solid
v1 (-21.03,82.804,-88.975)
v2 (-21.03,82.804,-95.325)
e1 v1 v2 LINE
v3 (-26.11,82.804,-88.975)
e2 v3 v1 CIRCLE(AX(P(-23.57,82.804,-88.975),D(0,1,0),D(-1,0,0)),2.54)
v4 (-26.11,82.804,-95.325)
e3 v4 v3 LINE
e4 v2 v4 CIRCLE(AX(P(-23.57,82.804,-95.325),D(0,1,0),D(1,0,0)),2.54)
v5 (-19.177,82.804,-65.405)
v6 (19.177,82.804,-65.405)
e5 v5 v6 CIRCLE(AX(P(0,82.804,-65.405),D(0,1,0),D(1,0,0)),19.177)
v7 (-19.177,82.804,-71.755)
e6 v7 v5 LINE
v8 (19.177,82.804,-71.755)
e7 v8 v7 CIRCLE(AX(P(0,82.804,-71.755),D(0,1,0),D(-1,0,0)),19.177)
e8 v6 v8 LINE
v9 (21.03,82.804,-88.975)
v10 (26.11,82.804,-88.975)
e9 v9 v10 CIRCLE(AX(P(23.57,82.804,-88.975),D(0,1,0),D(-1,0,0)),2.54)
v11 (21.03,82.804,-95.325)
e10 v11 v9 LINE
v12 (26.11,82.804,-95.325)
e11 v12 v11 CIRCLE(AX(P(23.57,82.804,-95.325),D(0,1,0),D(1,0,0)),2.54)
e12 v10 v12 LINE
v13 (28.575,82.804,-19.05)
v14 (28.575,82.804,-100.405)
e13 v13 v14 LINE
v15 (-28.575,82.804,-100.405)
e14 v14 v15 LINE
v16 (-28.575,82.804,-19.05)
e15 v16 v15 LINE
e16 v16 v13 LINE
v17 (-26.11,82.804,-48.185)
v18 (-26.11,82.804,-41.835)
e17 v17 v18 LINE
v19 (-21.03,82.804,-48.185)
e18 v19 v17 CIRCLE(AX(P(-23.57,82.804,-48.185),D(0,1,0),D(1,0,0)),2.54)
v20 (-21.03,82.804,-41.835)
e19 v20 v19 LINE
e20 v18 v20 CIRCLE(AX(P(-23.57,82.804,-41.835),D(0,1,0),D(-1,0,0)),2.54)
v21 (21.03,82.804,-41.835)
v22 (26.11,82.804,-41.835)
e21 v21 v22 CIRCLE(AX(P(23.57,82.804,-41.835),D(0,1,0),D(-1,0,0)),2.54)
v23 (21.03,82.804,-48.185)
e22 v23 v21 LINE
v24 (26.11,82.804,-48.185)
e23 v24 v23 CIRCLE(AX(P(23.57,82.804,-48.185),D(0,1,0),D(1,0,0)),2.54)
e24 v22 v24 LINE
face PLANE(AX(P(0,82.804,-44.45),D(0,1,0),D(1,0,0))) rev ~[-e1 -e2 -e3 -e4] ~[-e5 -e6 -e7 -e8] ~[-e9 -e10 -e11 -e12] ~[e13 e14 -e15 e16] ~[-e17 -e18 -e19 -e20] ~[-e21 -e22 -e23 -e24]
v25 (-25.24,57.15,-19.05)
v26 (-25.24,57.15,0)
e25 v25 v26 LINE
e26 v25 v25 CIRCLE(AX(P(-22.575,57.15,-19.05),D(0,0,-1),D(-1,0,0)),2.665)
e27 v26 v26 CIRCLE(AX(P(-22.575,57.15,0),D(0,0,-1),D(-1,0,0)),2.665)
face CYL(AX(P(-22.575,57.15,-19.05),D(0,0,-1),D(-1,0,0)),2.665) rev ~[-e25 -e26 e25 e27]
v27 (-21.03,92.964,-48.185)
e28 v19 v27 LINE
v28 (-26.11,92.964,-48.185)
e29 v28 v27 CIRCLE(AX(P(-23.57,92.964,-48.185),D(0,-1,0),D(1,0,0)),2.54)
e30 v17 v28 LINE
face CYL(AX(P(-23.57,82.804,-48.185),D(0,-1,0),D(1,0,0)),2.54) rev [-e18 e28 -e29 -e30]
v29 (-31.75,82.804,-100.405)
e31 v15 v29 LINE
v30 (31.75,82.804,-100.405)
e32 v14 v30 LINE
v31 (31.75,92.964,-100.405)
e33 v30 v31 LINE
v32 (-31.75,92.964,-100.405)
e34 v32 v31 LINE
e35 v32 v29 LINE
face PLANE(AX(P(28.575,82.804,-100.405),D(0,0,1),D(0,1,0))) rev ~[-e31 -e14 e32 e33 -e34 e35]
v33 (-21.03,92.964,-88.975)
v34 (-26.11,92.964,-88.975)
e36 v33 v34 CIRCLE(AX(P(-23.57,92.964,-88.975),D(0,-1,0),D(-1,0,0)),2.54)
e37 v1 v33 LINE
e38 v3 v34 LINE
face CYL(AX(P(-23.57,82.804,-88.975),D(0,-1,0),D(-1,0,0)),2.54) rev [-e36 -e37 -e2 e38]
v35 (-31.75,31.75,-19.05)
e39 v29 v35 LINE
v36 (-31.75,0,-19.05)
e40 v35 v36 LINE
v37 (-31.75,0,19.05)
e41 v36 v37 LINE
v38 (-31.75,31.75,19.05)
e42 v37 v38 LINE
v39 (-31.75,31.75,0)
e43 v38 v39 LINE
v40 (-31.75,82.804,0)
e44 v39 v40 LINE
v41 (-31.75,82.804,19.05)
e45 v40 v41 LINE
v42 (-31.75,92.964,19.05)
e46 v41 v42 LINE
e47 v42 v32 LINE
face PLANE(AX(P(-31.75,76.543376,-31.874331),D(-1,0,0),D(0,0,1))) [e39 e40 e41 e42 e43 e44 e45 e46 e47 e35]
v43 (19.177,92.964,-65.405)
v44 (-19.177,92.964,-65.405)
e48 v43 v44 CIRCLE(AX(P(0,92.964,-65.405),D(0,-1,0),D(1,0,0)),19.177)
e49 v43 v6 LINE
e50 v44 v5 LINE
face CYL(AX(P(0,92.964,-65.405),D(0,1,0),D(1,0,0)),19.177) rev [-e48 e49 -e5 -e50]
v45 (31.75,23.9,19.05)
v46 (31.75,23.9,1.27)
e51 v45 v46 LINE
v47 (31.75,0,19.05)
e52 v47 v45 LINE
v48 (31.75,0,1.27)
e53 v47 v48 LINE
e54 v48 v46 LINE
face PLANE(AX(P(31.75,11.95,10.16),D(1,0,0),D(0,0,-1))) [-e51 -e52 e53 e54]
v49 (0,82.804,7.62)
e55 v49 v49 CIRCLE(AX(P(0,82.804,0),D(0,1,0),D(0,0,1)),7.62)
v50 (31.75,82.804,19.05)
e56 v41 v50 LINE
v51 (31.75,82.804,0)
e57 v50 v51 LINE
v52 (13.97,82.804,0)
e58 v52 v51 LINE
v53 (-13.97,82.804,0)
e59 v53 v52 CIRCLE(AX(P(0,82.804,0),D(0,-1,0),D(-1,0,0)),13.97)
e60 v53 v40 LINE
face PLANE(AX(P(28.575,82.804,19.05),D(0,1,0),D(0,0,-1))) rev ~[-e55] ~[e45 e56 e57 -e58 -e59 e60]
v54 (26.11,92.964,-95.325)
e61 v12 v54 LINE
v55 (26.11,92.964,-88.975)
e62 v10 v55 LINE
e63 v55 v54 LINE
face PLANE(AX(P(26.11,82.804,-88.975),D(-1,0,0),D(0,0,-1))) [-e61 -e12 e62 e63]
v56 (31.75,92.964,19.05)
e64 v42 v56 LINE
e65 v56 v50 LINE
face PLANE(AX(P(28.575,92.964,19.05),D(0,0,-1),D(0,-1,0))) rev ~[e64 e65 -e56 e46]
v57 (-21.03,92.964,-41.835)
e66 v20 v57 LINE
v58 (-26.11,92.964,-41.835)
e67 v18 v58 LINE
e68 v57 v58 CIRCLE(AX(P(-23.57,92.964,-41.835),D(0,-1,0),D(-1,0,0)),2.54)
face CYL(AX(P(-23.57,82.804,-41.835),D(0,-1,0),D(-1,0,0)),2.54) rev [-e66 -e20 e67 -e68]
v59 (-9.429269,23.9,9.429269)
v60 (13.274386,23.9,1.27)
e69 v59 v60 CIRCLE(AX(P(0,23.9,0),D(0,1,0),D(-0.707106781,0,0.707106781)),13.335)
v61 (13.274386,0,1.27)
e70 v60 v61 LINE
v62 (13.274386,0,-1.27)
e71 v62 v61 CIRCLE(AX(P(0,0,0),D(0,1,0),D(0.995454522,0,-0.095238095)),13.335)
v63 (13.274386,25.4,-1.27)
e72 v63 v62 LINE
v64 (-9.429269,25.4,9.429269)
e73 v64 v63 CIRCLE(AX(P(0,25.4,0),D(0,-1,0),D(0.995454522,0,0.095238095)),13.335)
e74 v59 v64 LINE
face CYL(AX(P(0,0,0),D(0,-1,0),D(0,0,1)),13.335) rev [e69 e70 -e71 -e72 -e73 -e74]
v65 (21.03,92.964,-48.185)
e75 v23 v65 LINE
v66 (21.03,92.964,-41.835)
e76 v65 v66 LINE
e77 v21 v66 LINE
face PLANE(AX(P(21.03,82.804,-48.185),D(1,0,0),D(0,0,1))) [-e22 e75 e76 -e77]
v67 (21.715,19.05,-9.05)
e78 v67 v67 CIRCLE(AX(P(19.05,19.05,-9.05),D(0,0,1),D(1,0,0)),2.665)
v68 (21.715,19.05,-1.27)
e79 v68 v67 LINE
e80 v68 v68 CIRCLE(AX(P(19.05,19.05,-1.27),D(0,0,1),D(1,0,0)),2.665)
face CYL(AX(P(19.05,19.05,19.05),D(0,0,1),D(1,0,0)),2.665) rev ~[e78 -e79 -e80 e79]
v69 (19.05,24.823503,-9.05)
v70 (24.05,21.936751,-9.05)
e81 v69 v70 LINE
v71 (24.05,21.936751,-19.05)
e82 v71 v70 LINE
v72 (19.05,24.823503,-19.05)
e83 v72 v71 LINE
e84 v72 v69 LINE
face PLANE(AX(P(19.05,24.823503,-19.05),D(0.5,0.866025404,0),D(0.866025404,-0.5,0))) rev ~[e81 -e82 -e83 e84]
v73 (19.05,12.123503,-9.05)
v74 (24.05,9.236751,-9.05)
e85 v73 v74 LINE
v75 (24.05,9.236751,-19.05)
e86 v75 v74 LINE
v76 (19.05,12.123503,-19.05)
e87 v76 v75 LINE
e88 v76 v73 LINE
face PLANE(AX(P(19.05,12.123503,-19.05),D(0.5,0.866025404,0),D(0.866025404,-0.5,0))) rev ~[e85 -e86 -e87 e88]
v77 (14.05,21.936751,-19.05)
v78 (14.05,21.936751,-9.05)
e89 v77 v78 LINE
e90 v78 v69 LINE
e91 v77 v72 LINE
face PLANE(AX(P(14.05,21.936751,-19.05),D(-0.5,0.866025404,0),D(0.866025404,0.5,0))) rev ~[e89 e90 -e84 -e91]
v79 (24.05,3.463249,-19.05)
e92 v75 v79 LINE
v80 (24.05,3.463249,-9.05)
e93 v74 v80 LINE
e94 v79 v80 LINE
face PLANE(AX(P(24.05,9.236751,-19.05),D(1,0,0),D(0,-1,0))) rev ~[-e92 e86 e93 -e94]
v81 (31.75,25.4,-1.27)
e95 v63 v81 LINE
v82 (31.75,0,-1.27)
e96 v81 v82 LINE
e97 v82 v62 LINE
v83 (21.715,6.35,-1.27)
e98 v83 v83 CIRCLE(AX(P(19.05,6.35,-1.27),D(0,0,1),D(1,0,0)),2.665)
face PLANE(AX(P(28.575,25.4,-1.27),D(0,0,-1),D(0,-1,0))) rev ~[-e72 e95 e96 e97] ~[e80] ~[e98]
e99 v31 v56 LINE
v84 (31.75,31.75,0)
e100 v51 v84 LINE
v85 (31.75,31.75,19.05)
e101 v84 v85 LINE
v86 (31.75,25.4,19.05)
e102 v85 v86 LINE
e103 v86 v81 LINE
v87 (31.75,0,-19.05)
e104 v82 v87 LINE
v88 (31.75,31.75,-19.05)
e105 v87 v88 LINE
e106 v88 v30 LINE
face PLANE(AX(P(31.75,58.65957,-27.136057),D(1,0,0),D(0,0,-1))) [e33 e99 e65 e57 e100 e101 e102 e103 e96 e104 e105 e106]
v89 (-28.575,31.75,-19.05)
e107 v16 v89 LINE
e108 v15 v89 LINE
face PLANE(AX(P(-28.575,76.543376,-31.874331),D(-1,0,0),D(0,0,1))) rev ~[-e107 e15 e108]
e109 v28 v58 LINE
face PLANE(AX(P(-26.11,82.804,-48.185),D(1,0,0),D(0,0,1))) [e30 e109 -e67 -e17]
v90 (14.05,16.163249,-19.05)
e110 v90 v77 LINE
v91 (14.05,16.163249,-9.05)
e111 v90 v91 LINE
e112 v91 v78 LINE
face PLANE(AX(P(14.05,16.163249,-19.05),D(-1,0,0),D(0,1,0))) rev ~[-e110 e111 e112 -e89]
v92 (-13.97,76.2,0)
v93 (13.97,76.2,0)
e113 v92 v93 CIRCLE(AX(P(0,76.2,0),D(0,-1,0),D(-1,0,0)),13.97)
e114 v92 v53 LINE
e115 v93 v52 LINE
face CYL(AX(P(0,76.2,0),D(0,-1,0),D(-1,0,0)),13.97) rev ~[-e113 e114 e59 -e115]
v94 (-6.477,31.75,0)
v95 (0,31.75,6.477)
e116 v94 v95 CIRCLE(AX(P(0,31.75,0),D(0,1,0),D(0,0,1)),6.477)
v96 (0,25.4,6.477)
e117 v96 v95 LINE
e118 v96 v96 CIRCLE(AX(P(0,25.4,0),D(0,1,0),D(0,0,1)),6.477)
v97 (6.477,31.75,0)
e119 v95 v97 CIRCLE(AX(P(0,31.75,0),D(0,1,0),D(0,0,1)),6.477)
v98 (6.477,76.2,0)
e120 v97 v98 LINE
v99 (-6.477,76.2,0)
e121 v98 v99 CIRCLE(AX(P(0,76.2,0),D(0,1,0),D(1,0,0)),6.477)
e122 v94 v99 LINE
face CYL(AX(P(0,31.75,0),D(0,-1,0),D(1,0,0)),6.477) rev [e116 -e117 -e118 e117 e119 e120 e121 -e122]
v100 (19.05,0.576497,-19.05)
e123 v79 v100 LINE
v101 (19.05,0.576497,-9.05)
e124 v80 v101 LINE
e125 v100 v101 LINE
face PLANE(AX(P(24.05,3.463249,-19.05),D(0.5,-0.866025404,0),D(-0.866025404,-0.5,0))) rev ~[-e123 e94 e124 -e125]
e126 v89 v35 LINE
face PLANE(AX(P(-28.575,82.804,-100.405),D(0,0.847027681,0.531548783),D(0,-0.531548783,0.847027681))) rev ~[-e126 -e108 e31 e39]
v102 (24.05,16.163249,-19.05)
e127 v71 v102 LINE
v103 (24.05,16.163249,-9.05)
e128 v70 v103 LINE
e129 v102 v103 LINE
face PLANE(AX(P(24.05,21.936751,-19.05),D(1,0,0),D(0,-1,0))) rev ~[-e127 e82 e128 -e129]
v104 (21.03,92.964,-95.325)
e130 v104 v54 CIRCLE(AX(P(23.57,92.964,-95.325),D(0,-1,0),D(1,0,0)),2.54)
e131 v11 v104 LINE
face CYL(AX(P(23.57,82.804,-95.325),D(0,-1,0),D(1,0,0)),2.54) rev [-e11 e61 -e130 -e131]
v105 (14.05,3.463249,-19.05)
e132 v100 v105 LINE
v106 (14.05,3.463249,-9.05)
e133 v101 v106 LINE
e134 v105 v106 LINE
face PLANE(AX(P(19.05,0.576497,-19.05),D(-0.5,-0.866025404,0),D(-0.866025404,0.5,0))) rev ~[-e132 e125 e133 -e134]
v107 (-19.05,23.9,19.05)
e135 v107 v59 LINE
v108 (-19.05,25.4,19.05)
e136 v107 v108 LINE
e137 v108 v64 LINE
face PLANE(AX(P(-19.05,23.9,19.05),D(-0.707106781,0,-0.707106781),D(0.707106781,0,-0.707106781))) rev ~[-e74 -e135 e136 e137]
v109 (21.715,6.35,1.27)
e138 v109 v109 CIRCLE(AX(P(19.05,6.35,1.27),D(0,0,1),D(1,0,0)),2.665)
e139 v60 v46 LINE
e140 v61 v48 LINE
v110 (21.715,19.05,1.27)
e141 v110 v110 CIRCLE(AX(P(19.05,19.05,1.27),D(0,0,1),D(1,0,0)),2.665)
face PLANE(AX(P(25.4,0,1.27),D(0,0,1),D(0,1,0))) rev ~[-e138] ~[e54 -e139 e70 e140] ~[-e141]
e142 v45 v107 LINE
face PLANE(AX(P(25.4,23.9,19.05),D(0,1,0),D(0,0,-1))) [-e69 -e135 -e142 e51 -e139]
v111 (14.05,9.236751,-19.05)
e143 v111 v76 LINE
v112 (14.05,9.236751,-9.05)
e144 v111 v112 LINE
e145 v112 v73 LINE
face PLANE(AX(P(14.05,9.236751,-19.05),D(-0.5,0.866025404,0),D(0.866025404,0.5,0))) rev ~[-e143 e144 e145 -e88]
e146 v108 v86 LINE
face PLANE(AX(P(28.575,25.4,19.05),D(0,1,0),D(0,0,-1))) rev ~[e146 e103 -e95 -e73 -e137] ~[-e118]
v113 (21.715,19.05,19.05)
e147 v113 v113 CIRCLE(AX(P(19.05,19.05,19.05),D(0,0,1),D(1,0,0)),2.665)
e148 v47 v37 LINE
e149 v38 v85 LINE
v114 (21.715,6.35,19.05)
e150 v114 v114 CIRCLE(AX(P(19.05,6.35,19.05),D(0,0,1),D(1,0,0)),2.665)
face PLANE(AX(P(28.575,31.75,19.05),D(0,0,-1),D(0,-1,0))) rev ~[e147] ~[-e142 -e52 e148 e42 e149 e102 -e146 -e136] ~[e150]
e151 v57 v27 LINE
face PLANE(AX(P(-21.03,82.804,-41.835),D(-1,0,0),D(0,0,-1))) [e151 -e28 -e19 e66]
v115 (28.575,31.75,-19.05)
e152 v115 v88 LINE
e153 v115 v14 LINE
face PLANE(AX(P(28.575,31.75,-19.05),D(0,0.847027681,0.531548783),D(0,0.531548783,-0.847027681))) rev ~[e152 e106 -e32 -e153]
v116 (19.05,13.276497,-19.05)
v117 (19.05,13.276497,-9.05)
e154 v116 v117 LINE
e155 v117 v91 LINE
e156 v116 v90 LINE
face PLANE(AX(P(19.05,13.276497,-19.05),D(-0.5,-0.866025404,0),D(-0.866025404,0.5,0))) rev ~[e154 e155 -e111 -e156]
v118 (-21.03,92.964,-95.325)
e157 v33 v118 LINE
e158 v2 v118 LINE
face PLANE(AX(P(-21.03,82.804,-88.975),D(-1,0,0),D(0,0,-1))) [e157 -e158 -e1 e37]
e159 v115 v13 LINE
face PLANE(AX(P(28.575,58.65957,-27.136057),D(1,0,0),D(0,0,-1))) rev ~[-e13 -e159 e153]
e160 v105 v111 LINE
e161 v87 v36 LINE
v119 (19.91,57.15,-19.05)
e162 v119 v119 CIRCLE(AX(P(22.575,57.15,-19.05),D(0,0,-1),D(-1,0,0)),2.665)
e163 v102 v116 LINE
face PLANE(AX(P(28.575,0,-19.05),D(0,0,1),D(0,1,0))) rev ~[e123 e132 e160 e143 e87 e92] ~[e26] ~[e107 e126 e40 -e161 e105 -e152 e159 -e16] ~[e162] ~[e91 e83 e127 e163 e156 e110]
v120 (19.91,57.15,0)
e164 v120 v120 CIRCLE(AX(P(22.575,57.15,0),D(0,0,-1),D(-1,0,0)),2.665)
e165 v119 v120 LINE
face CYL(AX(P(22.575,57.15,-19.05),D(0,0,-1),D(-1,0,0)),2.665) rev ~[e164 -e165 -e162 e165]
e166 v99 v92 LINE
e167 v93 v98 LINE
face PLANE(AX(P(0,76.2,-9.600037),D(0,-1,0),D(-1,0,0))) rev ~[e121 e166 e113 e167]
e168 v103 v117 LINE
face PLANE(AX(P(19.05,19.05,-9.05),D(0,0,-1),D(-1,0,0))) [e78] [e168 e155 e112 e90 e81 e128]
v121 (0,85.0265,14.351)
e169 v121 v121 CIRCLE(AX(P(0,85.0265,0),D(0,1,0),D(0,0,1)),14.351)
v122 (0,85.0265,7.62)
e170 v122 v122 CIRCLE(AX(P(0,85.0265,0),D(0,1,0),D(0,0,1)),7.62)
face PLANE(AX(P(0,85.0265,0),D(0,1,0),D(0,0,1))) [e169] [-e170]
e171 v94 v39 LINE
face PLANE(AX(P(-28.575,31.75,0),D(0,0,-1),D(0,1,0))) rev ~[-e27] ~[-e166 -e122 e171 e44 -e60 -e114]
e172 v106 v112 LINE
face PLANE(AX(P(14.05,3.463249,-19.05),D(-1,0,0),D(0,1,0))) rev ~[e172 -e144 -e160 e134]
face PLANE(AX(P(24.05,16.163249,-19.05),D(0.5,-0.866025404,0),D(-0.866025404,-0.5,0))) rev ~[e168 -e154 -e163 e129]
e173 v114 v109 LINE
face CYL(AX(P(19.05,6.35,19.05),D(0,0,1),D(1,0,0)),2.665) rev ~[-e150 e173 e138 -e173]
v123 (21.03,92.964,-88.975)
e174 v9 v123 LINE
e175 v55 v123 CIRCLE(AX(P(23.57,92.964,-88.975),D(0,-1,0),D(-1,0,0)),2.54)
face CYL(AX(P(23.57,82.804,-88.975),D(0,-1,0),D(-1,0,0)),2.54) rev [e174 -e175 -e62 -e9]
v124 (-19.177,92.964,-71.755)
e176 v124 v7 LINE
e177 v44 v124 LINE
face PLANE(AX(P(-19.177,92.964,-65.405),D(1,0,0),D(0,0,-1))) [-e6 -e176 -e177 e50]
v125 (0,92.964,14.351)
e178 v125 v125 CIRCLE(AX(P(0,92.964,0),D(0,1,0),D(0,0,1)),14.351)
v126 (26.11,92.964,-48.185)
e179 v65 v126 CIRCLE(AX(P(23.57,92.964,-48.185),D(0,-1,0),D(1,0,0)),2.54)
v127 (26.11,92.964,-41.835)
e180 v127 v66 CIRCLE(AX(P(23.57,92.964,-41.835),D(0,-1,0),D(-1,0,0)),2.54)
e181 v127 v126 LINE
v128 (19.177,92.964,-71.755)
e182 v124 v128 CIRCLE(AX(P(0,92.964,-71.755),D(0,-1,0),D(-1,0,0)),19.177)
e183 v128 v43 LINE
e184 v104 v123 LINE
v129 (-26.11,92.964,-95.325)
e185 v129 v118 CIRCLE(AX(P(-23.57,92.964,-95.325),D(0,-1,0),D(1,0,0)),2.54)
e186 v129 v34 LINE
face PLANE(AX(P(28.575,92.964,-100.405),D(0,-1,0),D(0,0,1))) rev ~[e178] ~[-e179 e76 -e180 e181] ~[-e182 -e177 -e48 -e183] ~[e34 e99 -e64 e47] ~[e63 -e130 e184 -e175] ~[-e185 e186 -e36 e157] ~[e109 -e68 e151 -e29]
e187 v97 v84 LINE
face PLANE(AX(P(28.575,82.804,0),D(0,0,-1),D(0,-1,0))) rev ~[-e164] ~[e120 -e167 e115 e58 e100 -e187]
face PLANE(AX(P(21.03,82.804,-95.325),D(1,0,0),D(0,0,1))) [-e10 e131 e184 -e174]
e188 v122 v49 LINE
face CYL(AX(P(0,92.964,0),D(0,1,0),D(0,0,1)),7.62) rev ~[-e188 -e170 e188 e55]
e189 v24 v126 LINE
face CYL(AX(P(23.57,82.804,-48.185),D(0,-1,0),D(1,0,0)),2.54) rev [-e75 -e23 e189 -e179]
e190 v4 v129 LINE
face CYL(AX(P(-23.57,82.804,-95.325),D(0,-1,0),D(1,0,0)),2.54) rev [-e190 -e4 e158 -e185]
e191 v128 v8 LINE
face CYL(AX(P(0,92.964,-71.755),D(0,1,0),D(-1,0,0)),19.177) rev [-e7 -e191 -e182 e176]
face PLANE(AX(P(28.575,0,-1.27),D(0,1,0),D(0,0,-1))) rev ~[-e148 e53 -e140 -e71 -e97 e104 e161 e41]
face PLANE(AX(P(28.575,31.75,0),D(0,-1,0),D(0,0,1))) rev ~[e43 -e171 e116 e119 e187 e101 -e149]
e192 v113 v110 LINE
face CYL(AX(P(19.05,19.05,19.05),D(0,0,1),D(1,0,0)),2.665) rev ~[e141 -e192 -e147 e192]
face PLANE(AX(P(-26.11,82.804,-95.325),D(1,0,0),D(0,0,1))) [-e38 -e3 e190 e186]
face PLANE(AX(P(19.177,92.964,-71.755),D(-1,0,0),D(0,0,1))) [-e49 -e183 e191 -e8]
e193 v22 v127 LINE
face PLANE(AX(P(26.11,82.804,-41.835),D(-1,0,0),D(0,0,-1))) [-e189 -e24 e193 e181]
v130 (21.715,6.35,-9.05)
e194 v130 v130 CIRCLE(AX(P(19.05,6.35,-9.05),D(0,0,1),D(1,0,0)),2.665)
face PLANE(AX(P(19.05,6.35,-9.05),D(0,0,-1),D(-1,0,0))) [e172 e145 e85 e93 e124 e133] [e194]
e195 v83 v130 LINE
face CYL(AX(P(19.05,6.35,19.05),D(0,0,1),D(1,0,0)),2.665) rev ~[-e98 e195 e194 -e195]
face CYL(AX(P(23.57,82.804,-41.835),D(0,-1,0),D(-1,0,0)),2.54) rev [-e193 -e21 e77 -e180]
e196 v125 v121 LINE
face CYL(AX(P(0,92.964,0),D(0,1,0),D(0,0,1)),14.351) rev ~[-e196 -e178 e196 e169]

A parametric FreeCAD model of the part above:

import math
import FreeCAD as App
import Part
import Sketcher

V = App.Vector
Q = App.Units.Quantity


def add_polygon(sketch, points):
    """Adds a closed chain of lines whose ends are joined by coincident constraints."""
    first, n = sketch.GeometryCount, len(points)
    for a, b in zip(points, points[1:] + points[:1]):
        sketch.addGeometry(Part.LineSegment(App.Vector(*a, 0), App.Vector(*b, 0)), False)
    for i in range(n):
        sketch.addConstraint(Sketcher.Constraint("Coincident", first + i, 2, first + (i + 1) % n, 1))

doc = App.newDocument("Part")
body = doc.addObject("PartDesign::Body", "Body")

# Sketch on XZ plane
sketch1 = body.newObject("Sketcher::SketchObject", "Sketch")
sketch1.AttachmentSupport = (doc.getObject("XZ_Plane"), [""])
sketch1.MapMode = "FlatFace"
add_polygon(sketch1, [(-25.4, -19.05), (-25.4, 19.05), (25.4, 19.05), (25.4, -19.05)])  # lines 0-3
sketch1.addGeometry(Part.Circle(V(0, 0, 0), V(0, 0, 1), 13.335), False)  # 4
sketch1.addConstraint([
    Sketcher.Constraint("Vertical", 0),
    Sketcher.Constraint("Horizontal", 1),
    Sketcher.Constraint("Vertical", 2),
    Sketcher.Constraint("Horizontal", 3),
    Sketcher.Constraint("Coincident", 4, 3, -1, 1),
    Sketcher.Constraint("Symmetric", 0, 2, 2, 2, -1, 1),
    Sketcher.Constraint("Diameter", 4, Q("1.05 in")),
    Sketcher.Constraint("DistanceX", 1, 1, 1, 2, Q("2 in")),
    Sketcher.Constraint("DistanceY", 0, 1, 0, 2, Q("1.5 in")),
])
pad1 = body.newObject("PartDesign::Pad", "Pad")
pad1.Profile = sketch1
pad1.Length = Q("1 in")
pad1.Reversed = True

# Sketch on XZ plane
sketch2 = body.newObject("Sketcher::SketchObject", "Sketch001")
sketch2.AttachmentSupport = (doc.getObject("XZ_Plane"), [""])
sketch2.MapMode = "FlatFace"
sketch2.AttachmentOffset = App.Placement(V(0, 0, -1 * 25.4), App.Rotation())
add_polygon(sketch2, [(0, -1.27), (0, 1.27), (25.4, 1.27), (25.4, -1.27)])  # lines 0-3
sketch2.addConstraint([
    Sketcher.Constraint("Vertical", 0),
    Sketcher.Constraint("Horizontal", 1),
    Sketcher.Constraint("Vertical", 2),
    Sketcher.Constraint("Horizontal", 3),
    Sketcher.Constraint("Symmetric", 0, 2, 3, 2, -1, 1),
    Sketcher.Constraint("DistanceX", 1, 1, 1, 2, Q("1 in")),
    Sketcher.Constraint("DistanceY", 0, 1, 0, 2, Q("0.1 in")),
])
pocket1 = body.newObject("PartDesign::Pocket", "Pocket")
pocket1.Profile = sketch2
pocket1.Length = Q("1 in")
pocket1.Reversed = True

# Sketch on XY plane
sketch3 = body.newObject("Sketcher::SketchObject", "Sketch002")
sketch3.AttachmentSupport = (doc.getObject("XY_Plane"), [""])
sketch3.MapMode = "FlatFace"
sketch3.AttachmentOffset = App.Placement(V(0, 0, 0.75 * 25.4), App.Rotation())
sketch3.addGeometry([
    Part.Circle(V(19.05, 19.05, 0), V(0, 0, 1), 2.665),
    Part.Circle(V(19.05, 6.35, 0), V(0, 0, 1), 2.665),
], False)
sketch3.addConstraint([
    Sketcher.Constraint("Equal", 0, 1),
    Sketcher.Constraint("Vertical", 0, 3, 1, 3),
    Sketcher.Constraint("DistanceY", 1, 3, 0, 3, Q("0.5 in")),
    Sketcher.Constraint("Diameter", 0, Q("5.33 mm")),
    Sketcher.Constraint("DistanceX", -1, 1, 0, 3, Q("0.75 in")),
    Sketcher.Constraint("DistanceY", -1, 1, 0, 3, Q("0.75 in")),
])
pocket2 = body.newObject("PartDesign::Pocket", "Pocket001")
pocket2.Profile = sketch3
pocket2.Type = "ThroughAll"

# Sketch on XY plane
sketch4 = body.newObject("Sketcher::SketchObject", "Sketch003")
sketch4.AttachmentSupport = (doc.getObject("XY_Plane"), [""])
sketch4.MapMode = "FlatFace"
sketch4.AttachmentOffset = App.Placement(V(0, 0, -0.75 * 25.4), App.Rotation())
add_polygon(sketch4, [(19.05, 24.823503), (24.05, 21.936751), (24.05, 16.163249), (19.05, 13.276497), (14.05, 16.163249), (14.05, 21.936751)])  # lines 0-5
add_polygon(sketch4, [(19.05, 12.123503), (24.05, 9.236751), (24.05, 3.463249), (19.05, 0.576497), (14.05, 3.463249), (14.05, 9.236751)])  # lines 6-11
sketch4.addConstraint([
    Sketcher.Constraint("Vertical", 1),
    Sketcher.Constraint("Vertical", 4),
    Sketcher.Constraint("Vertical", 7),
    Sketcher.Constraint("Vertical", 10),
    Sketcher.Constraint("Parallel", 0, 3),
    Sketcher.Constraint("Parallel", 2, 5),
    Sketcher.Constraint("Parallel", 3, 6),
    Sketcher.Constraint("Parallel", 5, 8),
    Sketcher.Constraint("Parallel", 6, 9),
    Sketcher.Constraint("Parallel", 8, 11),
    Sketcher.Constraint("Horizontal", 1, 2, 3, 2),
    Sketcher.Constraint("Horizontal", 0, 2, 4, 2),
    Sketcher.Constraint("Horizontal", 7, 2, 9, 2),
    Sketcher.Constraint("Horizontal", 6, 2, 10, 2),
    Sketcher.Constraint("Vertical", 2, 2, 5, 2),
    Sketcher.Constraint("Vertical", 1, 2, 6, 2),
    Sketcher.Constraint("Vertical", 5, 2, 8, 2),
    Sketcher.Constraint("Equal", 4, 7),
    Sketcher.Constraint("Angle", 0, Q("-30 deg")),
    Sketcher.Constraint("DistanceY", 6, 2, 0, 2, Q("0.5 in")),
    Sketcher.Constraint("DistanceX", -1, 1, 2, 2, Q("0.75 in")),
    Sketcher.Constraint("DistanceX", -1, 1, 0, 2, Q("24.05 mm")),
    Sketcher.Constraint("DistanceY", 1, 2, 1, 1, Q("5.773503 mm")),
    Sketcher.Constraint("DistanceY", -1, 1, 0, 2, Q("21.936751 mm")),
])
pocket3 = body.newObject("PartDesign::Pocket", "Pocket002")
pocket3.Profile = sketch4
pocket3.Length = 10
pocket3.Reversed = True

# Sketch on XZ plane
sketch5 = body.newObject("Sketcher::SketchObject", "Sketch004")
sketch5.AttachmentSupport = (doc.getObject("XZ_Plane"), [""])
sketch5.MapMode = "FlatFace"
sketch5.AttachmentOffset = App.Placement(V(0, 0, -23.9), App.Rotation())
sketch5.addGeometry([
    Part.LineSegment(V(-9.429269, 9.429269, 0), V(-19.05, 19.05, 0)),  # 0
    Part.LineSegment(V(-19.05, 19.05, 0), V(25.4, 19.05, 0)),  # 1
    Part.LineSegment(V(25.4, 19.05, 0), V(25.4, 1.27, 0)),  # 2
    Part.LineSegment(V(25.4, 1.27, 0), V(13.274386, 1.27, 0)),  # 3
    Part.ArcOfCircle(Part.Circle(V(0, 0, 0), V(0, 0, 1), 13.335), math.radians(5.465024), math.radians(135)),  # 4
], False)
sketch5.addConstraint([
    Sketcher.Constraint("Coincident", 0, 2, 1, 1),
    Sketcher.Constraint("Coincident", 1, 2, 2, 1),
    Sketcher.Constraint("Coincident", 2, 2, 3, 1),
    Sketcher.Constraint("Coincident", 3, 2, 4, 1),
    Sketcher.Constraint("Coincident", 4, 2, 0, 1),
    Sketcher.Constraint("Horizontal", 1),
    Sketcher.Constraint("Vertical", 2),
    Sketcher.Constraint("Horizontal", 3),
    Sketcher.Constraint("Coincident", 4, 3, -1, 1),
    Sketcher.Constraint("DistanceY", 2, 2, 2, 1, Q("0.7 in")),
    Sketcher.Constraint("DistanceX", -1, 1, 1, 2, Q("1 in")),
    Sketcher.Constraint("Angle", 0, Q("135 deg")),
    Sketcher.Constraint("Radius", 4, Q("0.525 in")),
    Sketcher.Constraint("DistanceX", 1, 1, 1, 2, Q("1.75 in")),
    Sketcher.Constraint("DistanceY", -1, 1, 0, 2, Q("0.75 in")),
])
pocket4 = body.newObject("PartDesign::Pocket", "Pocket003")
pocket4.Profile = sketch5
pocket4.Length = 1.5

# Sketch on XZ plane
sketch6 = body.newObject("Sketcher::SketchObject", "Sketch005")
sketch6.AttachmentSupport = (doc.getObject("XZ_Plane"), [""])
sketch6.MapMode = "FlatFace"
sketch6.AttachmentOffset = App.Placement(V(0, 0, -1 * 25.4), App.Rotation())
add_polygon(sketch6, [(-25.4, -19.05), (-25.4, 19.05), (25.4, 19.05), (25.4, -19.05)])  # lines 0-3
sketch6.addGeometry(Part.Circle(V(0, 0, 0), V(0, 0, 1), 6.477), False)  # 4
sketch6.addConstraint([
    Sketcher.Constraint("Vertical", 0),
    Sketcher.Constraint("Horizontal", 1),
    Sketcher.Constraint("Vertical", 2),
    Sketcher.Constraint("Horizontal", 3),
    Sketcher.Constraint("Coincident", 4, 3, -1, 1),
    Sketcher.Constraint("Symmetric", 0, 2, 2, 2, -1, 1),
    Sketcher.Constraint("Diameter", 4, Q("0.51 in")),
    Sketcher.Constraint("DistanceX", 1, 1, 1, 2, Q("2 in")),
    Sketcher.Constraint("DistanceY", 0, 1, 0, 2, Q("1.5 in")),
])
pad2 = body.newObject("PartDesign::Pad", "Pad001")
pad2.Profile = sketch6
pad2.Length = Q("0.25 in")
pad2.Reversed = True

# Sketch on XZ plane
sketch7 = body.newObject("Sketcher::SketchObject", "Sketch006")
sketch7.AttachmentSupport = (doc.getObject("XZ_Plane"), [""])
sketch7.MapMode = "FlatFace"
sketch7.AttachmentOffset = App.Placement(V(0, 0, -1.25 * 25.4), App.Rotation())
sketch7.addGeometry([
    Part.LineSegment(V(25.4, -19.05, 0), V(-25.4, -19.05, 0)),  # 0
    Part.LineSegment(V(-25.4, -19.05, 0), V(-25.4, 0, 0)),  # 1
    Part.LineSegment(V(-25.4, 0, 0), V(-6.477, 0, 0)),  # 2
    Part.ArcOfCircle(Part.Circle(V(0, 0, 0), V(0, 0, 1), 6.477), math.radians(180), math.radians(360)),  # 3
    Part.LineSegment(V(6.477, 0, 0), V(25.4, 0, 0)),  # 4
    Part.LineSegment(V(25.4, 0, 0), V(25.4, -19.05, 0)),  # 5
], False)
sketch7.addConstraint([
    Sketcher.Constraint("Coincident", 0, 2, 1, 1),
    Sketcher.Constraint("Coincident", 1, 2, 2, 1),
    Sketcher.Constraint("Coincident", 2, 2, 3, 1),
    Sketcher.Constraint("Coincident", 3, 2, 4, 1),
    Sketcher.Constraint("Coincident", 4, 2, 5, 1),
    Sketcher.Constraint("Coincident", 5, 2, 0, 1),
    Sketcher.Constraint("Horizontal", 0),
    Sketcher.Constraint("Vertical", 1),
    Sketcher.Constraint("Horizontal", 2),
    Sketcher.Constraint("Horizontal", 4),
    Sketcher.Constraint("Vertical", 5),
    Sketcher.Constraint("Coincident", 3, 3, -1, 1),
    Sketcher.Constraint("Symmetric", 1, 2, 4, 2, -1, 1),
    Sketcher.Constraint("PointOnObject", 1, 2, -1),
    Sketcher.Constraint("DistanceX", 0, 2, 0, 1, Q("2 in")),
    Sketcher.Constraint("Radius", 3, Q("0.255 in")),
    Sketcher.Constraint("DistanceY", 1, 1, 1, 2, Q("0.75 in")),
])
pad3 = body.newObject("PartDesign::Pad", "Pad002")
pad3.Profile = sketch7
pad3.Length = Q("1.75 in")
pad3.Reversed = True

# Sketch on XZ plane
sketch8 = body.newObject("Sketcher::SketchObject", "Sketch007")
sketch8.AttachmentSupport = (doc.getObject("XZ_Plane"), [""])
sketch8.MapMode = "FlatFace"
sketch8.AttachmentOffset = App.Placement(V(0, 0, -3 * 25.4), App.Rotation())
sketch8.addGeometry([
    Part.LineSegment(V(-25.4, -19.05, 0), V(-25.4, 0, 0)),  # 0
    Part.LineSegment(V(-25.4, 0, 0), V(-13.97, 0, 0)),  # 1
    Part.ArcOfCircle(Part.Circle(V(0, 0, 0), V(0, 0, 1), 13.97), math.radians(180), math.radians(360)),  # 2
    Part.LineSegment(V(13.97, 0, 0), V(25.4, 0, 0)),  # 3
    Part.LineSegment(V(25.4, 0, 0), V(25.4, -19.05, 0)),  # 4
    Part.LineSegment(V(25.4, -19.05, 0), V(-25.4, -19.05, 0)),  # 5
], False)
sketch8.addConstraint([
    Sketcher.Constraint("Coincident", 0, 2, 1, 1),
    Sketcher.Constraint("Coincident", 1, 2, 2, 1),
    Sketcher.Constraint("Coincident", 2, 2, 3, 1),
    Sketcher.Constraint("Coincident", 3, 2, 4, 1),
    Sketcher.Constraint("Coincident", 4, 2, 5, 1),
    Sketcher.Constraint("Coincident", 5, 2, 0, 1),
    Sketcher.Constraint("Vertical", 0),
    Sketcher.Constraint("Horizontal", 1),
    Sketcher.Constraint("Horizontal", 3),
    Sketcher.Constraint("Vertical", 4),
    Sketcher.Constraint("Horizontal", 5),
    Sketcher.Constraint("Coincident", 2, 3, -1, 1),
    Sketcher.Constraint("Symmetric", 0, 2, 3, 2, -1, 1),
    Sketcher.Constraint("PointOnObject", 0, 2, -1),
    Sketcher.Constraint("DistanceX", 5, 2, 5, 1, Q("2 in")),
    Sketcher.Constraint("Radius", 2, Q("0.55 in")),
    Sketcher.Constraint("DistanceY", 0, 1, 0, 2, Q("0.75 in")),
])
pad4 = body.newObject("PartDesign::Pad", "Pad003")
pad4.Profile = sketch8
pad4.Length = Q("0.26 in")
pad4.Reversed = True

# Sketch on XZ plane
sketch9 = body.newObject("Sketcher::SketchObject", "Sketch008")
sketch9.AttachmentSupport = (doc.getObject("XZ_Plane"), [""])
sketch9.MapMode = "FlatFace"
sketch9.AttachmentOffset = App.Placement(V(0, 0, -3.26 * 25.4), App.Rotation())
add_polygon(sketch9, [(-28.575, -107.95), (-28.575, 19.05), (28.575, 19.05), (28.575, -107.95)])  # lines 0-3
sketch9.addConstraint([
    Sketcher.Constraint("Vertical", 0),
    Sketcher.Constraint("Horizontal", 1),
    Sketcher.Constraint("Vertical", 2),
    Sketcher.Constraint("Horizontal", 3),
    Sketcher.Constraint("DistanceY", 0, 1, 0, 2, Q("5 in")),
    Sketcher.Constraint("DistanceX", 1, 1, 1, 2, Q("2.25 in")),
    Sketcher.Constraint("DistanceY", -1, 1, 0, 2, Q("0.75 in")),
    Sketcher.Constraint("DistanceX", 0, 2, -1, 1, Q("1.125 in")),
])
pad5 = body.newObject("PartDesign::Pad", "Pad004")
pad5.Profile = sketch9
pad5.Length = Q("0.4 in")
pad5.Reversed = True

# Sketch on XZ plane
sketch10 = body.newObject("Sketcher::SketchObject", "Sketch009")
sketch10.AttachmentSupport = (doc.getObject("XZ_Plane"), [""])
sketch10.MapMode = "FlatFace"
sketch10.AttachmentOffset = App.Placement(V(0, 0, -3.66 * 25.4), App.Rotation())
sketch10.addGeometry(Part.Circle(V(0, 0, 0), V(0, 0, 1), 7.62), False)
sketch10.addConstraint([
    Sketcher.Constraint("Coincident", 0, 3, -1, 1),
    Sketcher.Constraint("Diameter", 0, Q("0.6 in")),
])
pocket5 = body.newObject("PartDesign::Pocket", "Pocket004")
pocket5.Profile = sketch10
pocket5.Type = "UpToFirst"
pocket5.Reversed = True

# Sketch on XZ plane
sketch11 = body.newObject("Sketcher::SketchObject", "Sketch010")
sketch11.AttachmentSupport = (doc.getObject("XZ_Plane"), [""])
sketch11.MapMode = "FlatFace"
sketch11.AttachmentOffset = App.Placement(V(0, 0, -3.66 * 25.4), App.Rotation())
sketch11.addGeometry(Part.Circle(V(0, 0, 0), V(0, 0, 1), 14.351), False)
sketch11.addConstraint([
    Sketcher.Constraint("Coincident", 0, 3, -1, 1),
    Sketcher.Constraint("Diameter", 0, Q("1.13 in")),
])
pocket6 = body.newObject("PartDesign::Pocket", "Pocket005")
pocket6.Profile = sketch11
pocket6.Length = Q("0.3125 in")
pocket6.Reversed = True

# Sketch on XZ plane
sketch12 = body.newObject("Sketcher::SketchObject", "Sketch011")
sketch12.AttachmentSupport = (doc.getObject("XZ_Plane"), [""])
sketch12.MapMode = "FlatFace"
sketch12.AttachmentOffset = App.Placement(V(0, 0, -3.66 * 25.4), App.Rotation())
sketch12.addGeometry([
    Part.LineSegment(V(-19.177, -71.755, 0), V(-19.177, -65.405, 0)),
    Part.ArcOfCircle(Part.Circle(V(0, -65.405, 0), V(0, 0, 1), 19.177), math.radians(0), math.radians(180)),
    Part.LineSegment(V(19.177, -65.405, 0), V(19.177, -71.755, 0)),
    Part.ArcOfCircle(Part.Circle(V(0, -71.755, 0), V(0, 0, 1), 19.177), math.radians(180), math.radians(360)),
], False)
sketch12.addConstraint([
    Sketcher.Constraint("Tangent", 0, 2, 1, 2),
    Sketcher.Constraint("Tangent", 1, 1, 2, 1),
    Sketcher.Constraint("Tangent", 2, 2, 3, 2),
    Sketcher.Constraint("Tangent", 3, 1, 0, 1),
    Sketcher.Constraint("Vertical", 0),
    Sketcher.Constraint("Vertical", 2),
    Sketcher.Constraint("PointOnObject", 1, 3, -2),
    Sketcher.Constraint("Radius", 1, Q("0.755 in")),
    Sketcher.Constraint("DistanceY", 0, 1, 0, 2, Q("0.25 in")),
    Sketcher.Constraint("DistanceY", 1, 3, -1, 1, Q("2.575 in")),
])
pocket7 = body.newObject("PartDesign::Pocket", "Pocket006")
pocket7.Profile = sketch12
pocket7.Type = "UpToFirst"
pocket7.Reversed = True

# Sketch on XZ plane
sketch13 = body.newObject("Sketcher::SketchObject", "Sketch012")
sketch13.AttachmentSupport = (doc.getObject("XZ_Plane"), [""])
sketch13.MapMode = "FlatFace"
sketch13.AttachmentOffset = App.Placement(V(0, 0, -3.26 * 25.4), App.Rotation())
sketch13.addGeometry([
    Part.LineSegment(V(-21.03, -95.325, 0), V(-21.03, -88.975, 0)),
    Part.ArcOfCircle(Part.Circle(V(-23.57, -88.975, 0), V(0, 0, 1), 2.54), math.radians(0), math.radians(180)),
    Part.LineSegment(V(-26.11, -88.975, 0), V(-26.11, -95.325, 0)),
    Part.ArcOfCircle(Part.Circle(V(-23.57, -95.325, 0), V(0, 0, 1), 2.54), math.radians(180), math.radians(360)),
], False)
sketch13.addConstraint([
    Sketcher.Constraint("Tangent", 0, 2, 1, 1),
    Sketcher.Constraint("Tangent", 1, 2, 2, 1),
    Sketcher.Constraint("Tangent", 2, 2, 3, 1),
    Sketcher.Constraint("Tangent", 3, 2, 0, 1),
    Sketcher.Constraint("Vertical", 0),
    Sketcher.Constraint("Vertical", 2),
    Sketcher.Constraint("Radius", 1, Q("0.1 in")),
    Sketcher.Constraint("DistanceY", 0, 1, 0, 2, Q("0.25 in")),
    Sketcher.Constraint("DistanceX", 1, 3, -1, 1, Q("23.57 mm")),
    Sketcher.Constraint("DistanceY", 1, 3, -1, 1, Q("88.975 mm")),
])
pocket8 = body.newObject("PartDesign::Pocket", "Pocket007")
pocket8.Profile = sketch13
pocket8.Type = "UpToFirst"

# Sketch on XZ plane
sketch14 = body.newObject("Sketcher::SketchObject", "Sketch013")
sketch14.AttachmentSupport = (doc.getObject("XZ_Plane"), [""])
sketch14.MapMode = "FlatFace"
sketch14.AttachmentOffset = App.Placement(V(0, 0, -3.26 * 25.4), App.Rotation())
sketch14.addGeometry([
    Part.LineSegment(V(26.11, -95.325, 0), V(26.11, -88.975, 0)),
    Part.ArcOfCircle(Part.Circle(V(23.57, -88.975, 0), V(0, 0, 1), 2.54), math.radians(0), math.radians(180)),
    Part.LineSegment(V(21.03, -88.975, 0), V(21.03, -95.325, 0)),
    Part.ArcOfCircle(Part.Circle(V(23.57, -95.325, 0), V(0, 0, 1), 2.54), math.radians(180), math.radians(360)),
], False)
sketch14.addConstraint([
    Sketcher.Constraint("Tangent", 0, 2, 1, 1),
    Sketcher.Constraint("Tangent", 1, 2, 2, 1),
    Sketcher.Constraint("Tangent", 2, 2, 3, 1),
    Sketcher.Constraint("Tangent", 3, 2, 0, 1),
    Sketcher.Constraint("Vertical", 0),
    Sketcher.Constraint("Vertical", 2),
    Sketcher.Constraint("Radius", 1, Q("0.1 in")),
    Sketcher.Constraint("DistanceY", 0, 1, 0, 2, Q("0.25 in")),
    Sketcher.Constraint("DistanceX", -1, 1, 1, 3, Q("23.57 mm")),
    Sketcher.Constraint("DistanceY", 1, 3, -1, 1, Q("88.975 mm")),
])
pocket9 = body.newObject("PartDesign::Pocket", "Pocket008")
pocket9.Profile = sketch14
pocket9.Type = "UpToFirst"

# Sketch on XZ plane
sketch15 = body.newObject("Sketcher::SketchObject", "Sketch014")
sketch15.AttachmentSupport = (doc.getObject("XZ_Plane"), [""])
sketch15.MapMode = "FlatFace"
sketch15.AttachmentOffset = App.Placement(V(0, 0, -3.26 * 25.4), App.Rotation())
sketch15.addGeometry([
    Part.LineSegment(V(26.11, -48.185, 0), V(26.11, -41.835, 0)),
    Part.ArcOfCircle(Part.Circle(V(23.57, -41.835, 0), V(0, 0, 1), 2.54), math.radians(0), math.radians(180)),
    Part.LineSegment(V(21.03, -41.835, 0), V(21.03, -48.185, 0)),
    Part.ArcOfCircle(Part.Circle(V(23.57, -48.185, 0), V(0, 0, 1), 2.54), math.radians(180), math.radians(360)),
], False)
sketch15.addConstraint([
    Sketcher.Constraint("Tangent", 0, 2, 1, 1),
    Sketcher.Constraint("Tangent", 1, 2, 2, 1),
    Sketcher.Constraint("Tangent", 2, 2, 3, 1),
    Sketcher.Constraint("Tangent", 3, 2, 0, 1),
    Sketcher.Constraint("Vertical", 0),
    Sketcher.Constraint("Vertical", 2),
    Sketcher.Constraint("Radius", 1, Q("0.1 in")),
    Sketcher.Constraint("DistanceY", 0, 1, 0, 2, Q("0.25 in")),
    Sketcher.Constraint("DistanceX", -1, 1, 1, 3, Q("23.57 mm")),
    Sketcher.Constraint("DistanceY", 1, 3, -1, 1, Q("41.835 mm")),
])
pocket10 = body.newObject("PartDesign::Pocket", "Pocket009")
pocket10.Profile = sketch15
pocket10.Type = "UpToFirst"

# Sketch on XZ plane
sketch16 = body.newObject("Sketcher::SketchObject", "Sketch015")
sketch16.AttachmentSupport = (doc.getObject("XZ_Plane"), [""])
sketch16.MapMode = "FlatFace"
sketch16.AttachmentOffset = App.Placement(V(0, 0, -3.26 * 25.4), App.Rotation())
sketch16.addGeometry([
    Part.LineSegment(V(-21.03, -48.185, 0), V(-21.03, -41.835, 0)),
    Part.ArcOfCircle(Part.Circle(V(-23.57, -41.835, 0), V(0, 0, 1), 2.54), math.radians(0), math.radians(180)),
    Part.LineSegment(V(-26.11, -41.835, 0), V(-26.11, -48.185, 0)),
    Part.ArcOfCircle(Part.Circle(V(-23.57, -48.185, 0), V(0, 0, 1), 2.54), math.radians(180), math.radians(360)),
], False)
sketch16.addConstraint([
    Sketcher.Constraint("Tangent", 0, 2, 1, 1),
    Sketcher.Constraint("Tangent", 1, 2, 2, 1),
    Sketcher.Constraint("Tangent", 2, 2, 3, 1),
    Sketcher.Constraint("Tangent", 3, 2, 0, 1),
    Sketcher.Constraint("Vertical", 0),
    Sketcher.Constraint("Vertical", 2),
    Sketcher.Constraint("Radius", 1, Q("0.1 in")),
    Sketcher.Constraint("DistanceY", 0, 1, 0, 2, Q("0.25 in")),
    Sketcher.Constraint("DistanceX", 1, 3, -1, 1, Q("23.57 mm")),
    Sketcher.Constraint("DistanceY", 1, 3, -1, 1, Q("41.835 mm")),
])
pocket11 = body.newObject("PartDesign::Pocket", "Pocket010")
pocket11.Profile = sketch16
pocket11.Type = "UpToFirst"

# Sketch on XZ plane
sketch17 = body.newObject("Sketcher::SketchObject", "Sketch016")
sketch17.AttachmentSupport = (doc.getObject("XZ_Plane"), [""])
sketch17.MapMode = "FlatFace"
sketch17.AttachmentOffset = App.Placement(V(0, 0, -3.66 * 25.4), App.Rotation())
add_polygon(sketch17, [(-28.575, -107.95), (-28.575, -100.405), (28.575, -100.405), (28.575, -107.95)])  # lines 0-3
sketch17.addConstraint([
    Sketcher.Constraint("Vertical", 0),
    Sketcher.Constraint("Horizontal", 1),
    Sketcher.Constraint("Vertical", 2),
    Sketcher.Constraint("Horizontal", 3),
    Sketcher.Constraint("DistanceX", 1, 1, 1, 2, Q("2.25 in")),
    Sketcher.Constraint("DistanceY", 2, 2, -1, 1, Q("4.25 in")),
    Sketcher.Constraint("DistanceX", 0, 2, -1, 1, Q("1.125 in")),
    Sketcher.Constraint("DistanceY", 0, 1, 0, 2, Q("7.545 mm")),
])
pocket12 = body.newObject("PartDesign::Pocket", "Pocket011")
pocket12.Profile = sketch17
pocket12.Type = "UpToFirst"
pocket12.Reversed = True

# Sketch on YZ plane
sketch18 = body.newObject("Sketcher::SketchObject", "Sketch017")
sketch18.AttachmentSupport = (doc.getObject("YZ_Plane"), [""])
sketch18.MapMode = "FlatFace"
sketch18.AttachmentOffset = App.Placement(V(0, 0, 1 * 25.4), App.Rotation())
add_polygon(sketch18, [(23.9, 19.05), (0, 19.05), (0, 1.27), (23.9, 1.27)])  # lines 0-3
add_polygon(sketch18, [(0, -19.05), (82.804, -19.05), (82.804, 0), (31.75, 0), (31.75, 19.05), (25.4, 19.05), (25.4, -1.27), (0, -1.27)])  # lines 4-11
sketch18.addConstraint([
    Sketcher.Constraint("Horizontal", 0),
    Sketcher.Constraint("Vertical", 1),
    Sketcher.Constraint("Horizontal", 2),
    Sketcher.Constraint("Vertical", 3),
    Sketcher.Constraint("Horizontal", 4),
    Sketcher.Constraint("Vertical", 5),
    Sketcher.Constraint("Horizontal", 6),
    Sketcher.Constraint("Vertical", 7),
    Sketcher.Constraint("Horizontal", 8),
    Sketcher.Constraint("Vertical", 9),
    Sketcher.Constraint("Horizontal", 10),
    Sketcher.Constraint("Vertical", 11),
    Sketcher.Constraint("Symmetric", 1, 2, 10, 2, -1, 1),
    Sketcher.Constraint("Symmetric", 0, 2, 11, 2, -1),
    Sketcher.Constraint("PointOnObject", 5, 2, -1),
    Sketcher.Constraint("Horizontal", 3, 2, 7, 2),
    Sketcher.Constraint("DistanceX", 10, 2, 10, 1, Q("1 in")),
    Sketcher.Constraint("DistanceY", 1, 2, 1, 1, Q("0.7 in")),
    Sketcher.Constraint("DistanceY", 9, 2, 9, 1, Q("0.8 in")),
    Sketcher.Constraint("DistanceX", 4, 1, 4, 2, Q("3.26 in")),
    Sketcher.Constraint("DistanceX", 6, 2, 6, 1, Q("2.01 in")),
    Sketcher.Constraint("DistanceX", 0, 2, 0, 1, Q("23.9 mm")),
])
pad6 = body.newObject("PartDesign::Pad", "Pad005")
pad6.Profile = sketch18
pad6.Length = Q("0.125 in")

# Sketch on YZ plane
sketch19 = body.newObject("Sketcher::SketchObject", "Sketch018")
sketch19.AttachmentSupport = (doc.getObject("YZ_Plane"), [""])
sketch19.MapMode = "FlatFace"
sketch19.AttachmentOffset = App.Placement(V(0, 0, -1 * 25.4), App.Rotation())
add_polygon(sketch19, [(0, -19.05), (0, 19.05), (31.75, 19.05), (31.75, 0), (82.804, 0), (82.804, -19.05)])  # lines 0-5
sketch19.addConstraint([
    Sketcher.Constraint("Vertical", 0),
    Sketcher.Constraint("Horizontal", 1),
    Sketcher.Constraint("Vertical", 2),
    Sketcher.Constraint("Horizontal", 3),
    Sketcher.Constraint("Vertical", 4),
    Sketcher.Constraint("Horizontal", 5),
    Sketcher.Constraint("Symmetric", 0, 2, 5, 2, -1, 1),
    Sketcher.Constraint("PointOnObject", 2, 2, -1),
    Sketcher.Constraint("DistanceY", 0, 1, 0, 2, Q("1.5 in")),
    Sketcher.Constraint("DistanceX", 1, 1, 1, 2, Q("1.25 in")),
    Sketcher.Constraint("DistanceX", 3, 1, 3, 2, Q("2.01 in")),
])
pad7 = body.newObject("PartDesign::Pad", "Pad006")
pad7.Profile = sketch19
pad7.Length = Q("0.125 in")
pad7.Reversed = True

# Sketch on YZ plane
sketch20 = body.newObject("Sketcher::SketchObject", "Sketch019")
sketch20.AttachmentSupport = (doc.getObject("YZ_Plane"), [""])
sketch20.MapMode = "FlatFace"
sketch20.AttachmentOffset = App.Placement(V(0, 0, -1.125 * 25.4), App.Rotation())
add_polygon(sketch20, [(92.964, -100.405), (82.804, -100.405), (31.75, -19.05), (0, -19.05), (0, 19.05), (31.75, 19.05), (31.75, 0), (82.804, 0), (82.804, 19.05), (92.964, 19.05)])  # lines 0-9
sketch20.addConstraint([
    Sketcher.Constraint("Horizontal", 0),
    Sketcher.Constraint("Horizontal", 2),
    Sketcher.Constraint("Vertical", 3),
    Sketcher.Constraint("Horizontal", 4),
    Sketcher.Constraint("Vertical", 5),
    Sketcher.Constraint("Horizontal", 6),
    Sketcher.Constraint("Vertical", 7),
    Sketcher.Constraint("Horizontal", 8),
    Sketcher.Constraint("Vertical", 9),
    Sketcher.Constraint("Symmetric", 2, 2, 3, 2, -1, 1),
    Sketcher.Constraint("PointOnObject", 5, 2, -1),
    Sketcher.Constraint("Horizontal", 4, 2, 7, 2),
    Sketcher.Constraint("Vertical", 1, 2, 4, 2),
    Sketcher.Constraint("Vertical", 0, 2, 6, 2),
    Sketcher.Constraint("DistanceX", 0, 2, 0, 1, Q("0.4 in")),
    Sketcher.Constraint("DistanceY", 3, 1, 3, 2, Q("1.5 in")),
    Sketcher.Constraint("DistanceX", 2, 2, 2, 1, Q("1.25 in")),
    Sketcher.Constraint("DistanceX", 6, 1, 6, 2, Q("2.01 in")),
    Sketcher.Constraint("DistanceY", 9, 2, 9, 1, Q("119.455 mm")),
])
pad8 = body.newObject("PartDesign::Pad", "Pad007")
pad8.Profile = sketch20
pad8.Length = Q("0.125 in")
pad8.Reversed = True

# Sketch on YZ plane
sketch21 = body.newObject("Sketcher::SketchObject", "Sketch020")
sketch21.AttachmentSupport = (doc.getObject("YZ_Plane"), [""])
sketch21.MapMode = "FlatFace"
sketch21.AttachmentOffset = App.Placement(V(0, 0, 1.125 * 25.4), App.Rotation())
add_polygon(sketch21, [(31.75, -19.05), (82.804, -100.405), (92.964, -100.405), (92.964, 19.05), (82.804, 19.05), (82.804, 0), (31.75, 0), (31.75, 19.05), (25.4, 19.05), (25.4, -1.27), (0, -1.27), (0, -19.05)])  # lines 0-11
add_polygon(sketch21, [(23.9, 19.05), (0, 19.05), (0, 1.27), (23.9, 1.27)])  # lines 12-15
sketch21.addConstraint([
    Sketcher.Constraint("Horizontal", 1),
    Sketcher.Constraint("Vertical", 2),
    Sketcher.Constraint("Horizontal", 3),
    Sketcher.Constraint("Vertical", 4),
    Sketcher.Constraint("Horizontal", 5),
    Sketcher.Constraint("Vertical", 6),
    Sketcher.Constraint("Horizontal", 7),
    Sketcher.Constraint("Vertical", 8),
    Sketcher.Constraint("Horizontal", 9),
    Sketcher.Constraint("Vertical", 10),
    Sketcher.Constraint("Horizontal", 11),
    Sketcher.Constraint("Horizontal", 12),
    Sketcher.Constraint("Vertical", 13),
    Sketcher.Constraint("Horizontal", 14),
    Sketcher.Constraint("Vertical", 15),
    Sketcher.Constraint("Symmetric", 10, 2, 12, 2, -1, 1),
    Sketcher.Constraint("Symmetric", 6, 2, 11, 2, -1),
    Sketcher.Constraint("Symmetric", 9, 2, 13, 2, -1),
    Sketcher.Constraint("PointOnObject", 4, 2, -1),
    Sketcher.Constraint("Horizontal", 3, 2, 6, 2),
    Sketcher.Constraint("Vertical", 0, 2, 3, 2),
    Sketcher.Constraint("DistanceX", 9, 2, 9, 1, Q("1 in")),
    Sketcher.Constraint("DistanceX", 1, 1, 1, 2, Q("0.4 in")),
    Sketcher.Constraint("DistanceY", 8, 2, 8, 1, Q("0.8 in")),
    Sketcher.Constraint("DistanceY", 10, 2, 10, 1, Q("0.7 in")),
    Sketcher.Constraint("DistanceX", 5, 2, 5, 1, Q("2.01 in")),
    Sketcher.Constraint("DistanceX", 7, 2, 7, 1, Q("0.25 in")),
    Sketcher.Constraint("DistanceX", 12, 2, 12, 1, Q("23.9 mm")),
    Sketcher.Constraint("DistanceY", 2, 1, 2, 2, Q("119.455 mm")),
])
pad9 = body.newObject("PartDesign::Pad", "Pad008")
pad9.Profile = sketch21
pad9.Length = Q("0.125 in")

# Sketch on XY plane
sketch22 = body.newObject("Sketcher::SketchObject", "Sketch021")
sketch22.AttachmentSupport = (doc.getObject("XY_Plane"), [""])
sketch22.MapMode = "FlatFace"
sketch22.AttachmentOffset = App.Placement(V(0, 0, -0.75 * 25.4), App.Rotation())
sketch22.addGeometry(Part.Circle(V(-22.575, 57.15, 0), V(0, 0, 1), 2.665), False)
sketch22.addConstraint([
    Sketcher.Constraint("Diameter", 0, Q("5.33 mm")),
    Sketcher.Constraint("DistanceY", -1, 1, 0, 3, Q("2.25 in")),
    Sketcher.Constraint("DistanceX", 0, 3, -1, 1, Q("22.575 mm")),
])
pocket13 = body.newObject("PartDesign::Pocket", "Pocket012")
pocket13.Profile = sketch22
pocket13.Type = "UpToFirst"
pocket13.Reversed = True

# Sketch on XY plane
sketch23 = body.newObject("Sketcher::SketchObject", "Sketch022")
sketch23.AttachmentSupport = (doc.getObject("XY_Plane"), [""])
sketch23.MapMode = "FlatFace"
sketch23.AttachmentOffset = App.Placement(V(0, 0, -0.75 * 25.4), App.Rotation())
sketch23.addGeometry(Part.Circle(V(22.575, 57.15, 0), V(0, 0, 1), 2.665), False)
sketch23.addConstraint([
    Sketcher.Constraint("Diameter", 0, Q("5.33 mm")),
    Sketcher.Constraint("DistanceY", -1, 1, 0, 3, Q("2.25 in")),
    Sketcher.Constraint("DistanceX", -1, 1, 0, 3, Q("22.575 mm")),
])
pocket14 = body.newObject("PartDesign::Pocket", "Pocket013")
pocket14.Profile = sketch23
pocket14.Type = "UpToFirst"
pocket14.Reversed = True

doc.recompute()
